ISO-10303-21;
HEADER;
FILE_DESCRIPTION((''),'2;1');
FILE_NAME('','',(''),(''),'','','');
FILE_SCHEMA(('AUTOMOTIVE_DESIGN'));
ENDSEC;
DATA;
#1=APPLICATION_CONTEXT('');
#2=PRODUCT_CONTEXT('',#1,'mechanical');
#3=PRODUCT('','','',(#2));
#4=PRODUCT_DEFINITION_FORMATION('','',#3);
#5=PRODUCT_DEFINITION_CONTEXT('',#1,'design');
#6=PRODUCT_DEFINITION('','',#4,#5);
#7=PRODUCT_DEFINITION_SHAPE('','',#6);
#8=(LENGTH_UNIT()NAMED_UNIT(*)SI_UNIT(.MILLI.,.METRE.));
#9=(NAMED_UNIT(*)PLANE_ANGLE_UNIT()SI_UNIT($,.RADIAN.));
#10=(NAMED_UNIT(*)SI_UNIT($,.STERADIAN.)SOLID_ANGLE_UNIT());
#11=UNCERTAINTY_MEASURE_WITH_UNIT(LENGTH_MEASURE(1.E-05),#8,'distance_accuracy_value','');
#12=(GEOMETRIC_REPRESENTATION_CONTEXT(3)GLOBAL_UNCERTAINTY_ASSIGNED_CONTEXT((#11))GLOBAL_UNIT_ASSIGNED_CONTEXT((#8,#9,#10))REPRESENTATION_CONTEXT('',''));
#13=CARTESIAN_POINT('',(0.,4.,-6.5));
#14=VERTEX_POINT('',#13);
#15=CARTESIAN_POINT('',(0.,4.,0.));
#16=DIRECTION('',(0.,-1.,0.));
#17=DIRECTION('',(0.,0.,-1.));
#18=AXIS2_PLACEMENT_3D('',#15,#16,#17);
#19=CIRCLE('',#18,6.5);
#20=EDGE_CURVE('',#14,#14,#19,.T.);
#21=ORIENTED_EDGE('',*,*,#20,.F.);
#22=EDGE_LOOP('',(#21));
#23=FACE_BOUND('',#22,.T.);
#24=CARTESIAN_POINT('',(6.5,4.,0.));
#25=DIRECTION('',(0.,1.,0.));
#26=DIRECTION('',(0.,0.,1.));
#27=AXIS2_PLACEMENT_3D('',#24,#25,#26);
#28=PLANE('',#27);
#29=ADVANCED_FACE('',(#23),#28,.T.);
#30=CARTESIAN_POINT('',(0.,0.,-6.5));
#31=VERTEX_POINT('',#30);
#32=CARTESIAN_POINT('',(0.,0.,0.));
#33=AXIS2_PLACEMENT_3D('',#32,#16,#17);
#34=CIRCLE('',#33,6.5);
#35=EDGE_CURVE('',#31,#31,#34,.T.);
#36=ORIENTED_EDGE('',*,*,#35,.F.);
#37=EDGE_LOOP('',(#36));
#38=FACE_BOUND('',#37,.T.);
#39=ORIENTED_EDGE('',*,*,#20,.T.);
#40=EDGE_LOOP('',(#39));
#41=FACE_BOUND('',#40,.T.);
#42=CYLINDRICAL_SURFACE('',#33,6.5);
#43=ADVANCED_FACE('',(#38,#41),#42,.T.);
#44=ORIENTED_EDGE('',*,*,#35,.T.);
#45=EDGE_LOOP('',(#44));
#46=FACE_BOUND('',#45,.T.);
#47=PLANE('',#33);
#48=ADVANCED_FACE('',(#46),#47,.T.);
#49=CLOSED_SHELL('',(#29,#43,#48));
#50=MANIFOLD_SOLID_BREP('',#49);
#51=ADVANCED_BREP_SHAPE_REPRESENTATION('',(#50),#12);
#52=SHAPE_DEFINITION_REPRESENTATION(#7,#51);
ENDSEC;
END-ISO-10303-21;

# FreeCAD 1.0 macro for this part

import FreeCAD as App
import Part
import Sketcher
from FreeCAD import Vector
Q = App.Units.Quantity


def add_polygon(sketch, points):
    """Adds a closed chain of lines whose ends are joined by coincident constraints."""
    first, n = sketch.GeometryCount, len(points)
    for a, b in zip(points, points[1:] + points[:1]):
        sketch.addGeometry(Part.LineSegment(App.Vector(*a, 0), App.Vector(*b, 0)), False)
    for i in range(n):
        sketch.addConstraint(Sketcher.Constraint("Coincident", first + i, 2, first + (i + 1) % n, 1))

doc = App.newDocument("Part")
body = doc.addObject("PartDesign::Body", "Body")

sketch1 = body.newObject("Sketcher::SketchObject", "Sketch")
sketch1.AttachmentSupport = (doc.getObject("XY_Plane"), [""])
sketch1.MapMode = "FlatFace"
add_polygon(sketch1, [(0, 4), (0, 0), (6.5, 0), (6.5, 4)])
sketch1.addConstraint(Sketcher.Constraint("Vertical", 0))
sketch1.addConstraint(Sketcher.Constraint("Horizontal", 1))
sketch1.addConstraint(Sketcher.Constraint("Vertical", 2))
sketch1.addConstraint(Sketcher.Constraint("Horizontal", 3))
sketch1.addConstraint(Sketcher.Constraint("Coincident", 0, 2, -1, 1))
sketch1.addConstraint(Sketcher.Constraint("DistanceY", 0, 2, 0, 1, Q("4 mm")))
sketch1.addConstraint(Sketcher.Constraint("DistanceX", 1, 1, 1, 2, Q("6.5 mm")))
revolution = body.newObject("PartDesign::Revolution", "Revolution")
revolution.Profile = sketch1
revolution.ReferenceAxis = (sketch1, ["V_Axis"])
revolution.Angle = 360

doc.recompute()
